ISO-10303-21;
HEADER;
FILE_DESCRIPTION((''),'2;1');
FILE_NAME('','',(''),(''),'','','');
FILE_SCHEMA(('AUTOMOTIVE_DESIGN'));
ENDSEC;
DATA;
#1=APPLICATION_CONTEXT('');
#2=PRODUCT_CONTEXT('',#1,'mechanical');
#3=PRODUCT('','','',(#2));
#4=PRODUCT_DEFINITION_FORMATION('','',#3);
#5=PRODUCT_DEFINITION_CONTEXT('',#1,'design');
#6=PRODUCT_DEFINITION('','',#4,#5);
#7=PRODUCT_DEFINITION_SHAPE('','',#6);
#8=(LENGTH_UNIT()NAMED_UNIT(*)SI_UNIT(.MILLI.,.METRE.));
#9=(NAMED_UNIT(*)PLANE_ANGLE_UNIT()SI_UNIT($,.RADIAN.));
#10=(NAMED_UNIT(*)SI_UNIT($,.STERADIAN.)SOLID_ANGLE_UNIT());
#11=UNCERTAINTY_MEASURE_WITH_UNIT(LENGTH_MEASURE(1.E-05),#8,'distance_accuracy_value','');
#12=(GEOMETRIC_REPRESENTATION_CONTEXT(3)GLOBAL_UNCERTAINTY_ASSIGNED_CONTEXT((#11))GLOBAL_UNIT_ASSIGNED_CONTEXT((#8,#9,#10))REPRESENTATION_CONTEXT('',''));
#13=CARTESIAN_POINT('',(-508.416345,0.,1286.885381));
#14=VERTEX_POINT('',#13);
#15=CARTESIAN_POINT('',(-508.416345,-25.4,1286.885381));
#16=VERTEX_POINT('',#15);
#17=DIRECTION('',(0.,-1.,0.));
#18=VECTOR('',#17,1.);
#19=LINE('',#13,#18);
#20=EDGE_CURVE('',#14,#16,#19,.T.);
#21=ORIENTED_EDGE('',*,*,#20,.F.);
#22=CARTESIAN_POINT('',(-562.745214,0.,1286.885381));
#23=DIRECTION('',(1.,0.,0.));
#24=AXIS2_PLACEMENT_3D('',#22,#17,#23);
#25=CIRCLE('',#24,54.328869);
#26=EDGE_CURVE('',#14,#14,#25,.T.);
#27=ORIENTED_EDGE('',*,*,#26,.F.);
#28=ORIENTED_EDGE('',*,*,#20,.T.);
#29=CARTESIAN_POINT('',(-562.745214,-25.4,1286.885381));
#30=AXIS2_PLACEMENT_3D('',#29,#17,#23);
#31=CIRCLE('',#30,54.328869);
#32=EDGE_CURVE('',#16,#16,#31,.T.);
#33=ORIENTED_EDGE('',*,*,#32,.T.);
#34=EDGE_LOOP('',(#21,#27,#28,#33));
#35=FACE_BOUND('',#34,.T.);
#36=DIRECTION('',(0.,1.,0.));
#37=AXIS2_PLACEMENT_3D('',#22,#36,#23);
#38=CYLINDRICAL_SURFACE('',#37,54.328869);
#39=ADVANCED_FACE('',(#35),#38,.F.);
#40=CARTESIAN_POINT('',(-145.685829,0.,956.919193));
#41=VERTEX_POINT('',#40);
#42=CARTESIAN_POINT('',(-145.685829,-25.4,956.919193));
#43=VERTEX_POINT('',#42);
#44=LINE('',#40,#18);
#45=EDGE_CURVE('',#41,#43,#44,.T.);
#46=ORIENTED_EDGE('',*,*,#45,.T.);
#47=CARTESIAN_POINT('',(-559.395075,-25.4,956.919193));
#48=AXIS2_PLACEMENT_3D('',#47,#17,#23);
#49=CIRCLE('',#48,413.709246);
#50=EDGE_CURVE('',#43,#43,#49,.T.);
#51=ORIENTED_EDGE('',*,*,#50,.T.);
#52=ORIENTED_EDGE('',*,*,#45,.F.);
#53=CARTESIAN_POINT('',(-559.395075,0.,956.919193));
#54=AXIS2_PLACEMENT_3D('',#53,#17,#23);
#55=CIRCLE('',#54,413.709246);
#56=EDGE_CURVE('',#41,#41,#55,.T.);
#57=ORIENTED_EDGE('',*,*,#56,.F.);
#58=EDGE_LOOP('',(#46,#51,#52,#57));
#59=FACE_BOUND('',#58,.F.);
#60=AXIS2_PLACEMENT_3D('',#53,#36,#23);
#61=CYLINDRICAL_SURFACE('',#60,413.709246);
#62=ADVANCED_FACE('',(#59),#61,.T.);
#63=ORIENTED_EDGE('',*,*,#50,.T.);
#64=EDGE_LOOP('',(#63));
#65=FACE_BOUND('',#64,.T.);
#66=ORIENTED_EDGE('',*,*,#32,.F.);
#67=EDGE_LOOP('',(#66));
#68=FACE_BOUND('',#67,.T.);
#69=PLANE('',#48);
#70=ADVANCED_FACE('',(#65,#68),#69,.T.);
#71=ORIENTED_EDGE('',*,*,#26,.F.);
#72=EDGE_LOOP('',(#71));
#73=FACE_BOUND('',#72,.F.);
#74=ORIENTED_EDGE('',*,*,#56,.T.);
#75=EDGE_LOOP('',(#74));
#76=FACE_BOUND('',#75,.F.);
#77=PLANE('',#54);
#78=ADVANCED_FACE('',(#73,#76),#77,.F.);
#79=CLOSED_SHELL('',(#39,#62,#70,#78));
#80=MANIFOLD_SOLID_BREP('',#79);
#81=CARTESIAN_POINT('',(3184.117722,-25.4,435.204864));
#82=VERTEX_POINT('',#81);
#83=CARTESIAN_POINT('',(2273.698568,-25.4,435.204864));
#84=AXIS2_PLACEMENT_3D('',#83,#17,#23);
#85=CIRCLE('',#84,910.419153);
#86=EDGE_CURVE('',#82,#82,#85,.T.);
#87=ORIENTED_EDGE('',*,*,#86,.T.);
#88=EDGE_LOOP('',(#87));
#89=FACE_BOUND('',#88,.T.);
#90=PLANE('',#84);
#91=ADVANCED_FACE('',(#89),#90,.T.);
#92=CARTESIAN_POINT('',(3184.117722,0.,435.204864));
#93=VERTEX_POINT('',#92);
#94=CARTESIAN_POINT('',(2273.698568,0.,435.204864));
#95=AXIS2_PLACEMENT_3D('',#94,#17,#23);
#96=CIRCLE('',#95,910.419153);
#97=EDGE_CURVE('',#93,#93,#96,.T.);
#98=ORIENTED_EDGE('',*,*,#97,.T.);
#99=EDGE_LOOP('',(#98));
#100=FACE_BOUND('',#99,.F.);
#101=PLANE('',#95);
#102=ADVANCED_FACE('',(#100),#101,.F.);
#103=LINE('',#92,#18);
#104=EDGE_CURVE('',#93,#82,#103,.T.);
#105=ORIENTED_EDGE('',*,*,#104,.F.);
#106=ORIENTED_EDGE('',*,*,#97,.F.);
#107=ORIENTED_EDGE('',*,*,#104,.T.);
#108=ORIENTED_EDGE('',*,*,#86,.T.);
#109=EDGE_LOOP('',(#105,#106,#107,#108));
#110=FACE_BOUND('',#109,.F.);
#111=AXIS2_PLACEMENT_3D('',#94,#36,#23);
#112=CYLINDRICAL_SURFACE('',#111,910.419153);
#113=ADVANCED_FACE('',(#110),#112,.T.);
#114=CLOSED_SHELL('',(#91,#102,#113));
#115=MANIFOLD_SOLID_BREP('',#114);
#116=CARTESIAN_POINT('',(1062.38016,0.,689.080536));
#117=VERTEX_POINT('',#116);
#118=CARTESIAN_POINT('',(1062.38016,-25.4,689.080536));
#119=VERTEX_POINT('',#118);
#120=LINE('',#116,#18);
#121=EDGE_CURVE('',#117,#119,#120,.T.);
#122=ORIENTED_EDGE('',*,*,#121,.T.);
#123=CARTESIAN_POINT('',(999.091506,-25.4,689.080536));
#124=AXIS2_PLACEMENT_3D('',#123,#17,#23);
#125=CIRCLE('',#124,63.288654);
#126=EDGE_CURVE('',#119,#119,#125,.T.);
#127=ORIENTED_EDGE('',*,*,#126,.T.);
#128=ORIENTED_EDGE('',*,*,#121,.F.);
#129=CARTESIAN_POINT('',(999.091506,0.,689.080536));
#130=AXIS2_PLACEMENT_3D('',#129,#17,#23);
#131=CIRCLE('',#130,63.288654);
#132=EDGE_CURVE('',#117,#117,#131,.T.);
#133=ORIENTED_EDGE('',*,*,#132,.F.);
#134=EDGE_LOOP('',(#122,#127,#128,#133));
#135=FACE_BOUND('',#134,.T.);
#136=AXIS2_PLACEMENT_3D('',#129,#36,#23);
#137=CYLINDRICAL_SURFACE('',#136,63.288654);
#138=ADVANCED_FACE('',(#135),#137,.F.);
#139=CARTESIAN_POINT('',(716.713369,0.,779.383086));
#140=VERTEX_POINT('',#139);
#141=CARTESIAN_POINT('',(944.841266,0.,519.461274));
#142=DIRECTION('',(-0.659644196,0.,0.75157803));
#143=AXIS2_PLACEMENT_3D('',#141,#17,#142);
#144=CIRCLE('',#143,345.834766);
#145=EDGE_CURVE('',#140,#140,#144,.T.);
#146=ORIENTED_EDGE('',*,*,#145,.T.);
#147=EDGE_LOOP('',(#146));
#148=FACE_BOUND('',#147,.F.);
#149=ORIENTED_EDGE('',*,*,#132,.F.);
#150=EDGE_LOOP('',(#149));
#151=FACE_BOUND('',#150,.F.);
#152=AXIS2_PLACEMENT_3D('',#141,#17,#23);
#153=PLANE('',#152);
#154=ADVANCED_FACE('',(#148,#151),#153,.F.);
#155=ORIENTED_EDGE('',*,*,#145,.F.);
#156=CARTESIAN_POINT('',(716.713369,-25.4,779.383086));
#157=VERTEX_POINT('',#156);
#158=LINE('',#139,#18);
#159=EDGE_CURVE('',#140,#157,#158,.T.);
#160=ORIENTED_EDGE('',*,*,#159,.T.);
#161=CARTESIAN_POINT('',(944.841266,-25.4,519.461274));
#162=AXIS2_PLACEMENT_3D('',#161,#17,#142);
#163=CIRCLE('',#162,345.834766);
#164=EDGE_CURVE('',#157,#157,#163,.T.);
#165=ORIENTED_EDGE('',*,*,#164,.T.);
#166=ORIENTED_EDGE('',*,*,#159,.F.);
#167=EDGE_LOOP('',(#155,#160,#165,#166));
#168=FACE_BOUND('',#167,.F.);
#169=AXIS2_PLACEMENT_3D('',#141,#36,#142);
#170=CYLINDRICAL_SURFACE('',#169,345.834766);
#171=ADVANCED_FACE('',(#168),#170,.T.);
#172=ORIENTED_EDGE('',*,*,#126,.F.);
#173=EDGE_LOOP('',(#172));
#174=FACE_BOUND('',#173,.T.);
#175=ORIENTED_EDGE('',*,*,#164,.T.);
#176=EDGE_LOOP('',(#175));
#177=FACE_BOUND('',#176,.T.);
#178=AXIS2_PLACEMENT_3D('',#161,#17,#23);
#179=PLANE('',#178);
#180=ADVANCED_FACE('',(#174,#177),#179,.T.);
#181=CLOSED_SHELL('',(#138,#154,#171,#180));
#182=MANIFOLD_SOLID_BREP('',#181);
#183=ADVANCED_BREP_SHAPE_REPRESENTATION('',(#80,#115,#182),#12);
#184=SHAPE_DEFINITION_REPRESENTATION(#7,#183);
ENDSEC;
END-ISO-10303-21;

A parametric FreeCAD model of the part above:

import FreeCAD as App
import Part
import Sketcher

V = App.Vector
Q = App.Units.Quantity

doc = App.newDocument("Part")
params = doc.addObject("Spreadsheet::Sheet", "Params")
for row, (alias, value) in enumerate([
    ("pad1_length", "1 in"),
    ("pad2_length", "1 in"),
    ("pad3_length", "1 in"),
], start=1):
    params.set(f"A{row}", alias)
    params.set(f"B{row}", "=" + value)
    params.setAlias(f"B{row}", alias)

body = doc.addObject("PartDesign::Body", "Body")

sketch1 = body.newObject("Sketcher::SketchObject", "Sketch")
sketch1.AttachmentSupport = (doc.getObject("XZ_Plane"), [""])
sketch1.MapMode = "FlatFace"
sketch1.addGeometry([
    Part.Circle(V(-559, 957, 0), V(0, 0, 1), 414),
    Part.Circle(V(-563, 1287, 0), V(0, 0, 1), 54),
], False)
sketch1.addConstraint([
    Sketcher.Constraint("Diameter", 0, Q("827.418492 mm")),
    Sketcher.Constraint("Diameter", 1, Q("108.657737 mm")),
    Sketcher.Constraint("DistanceY", -1, 1, 1, 3, Q("1286.885381 mm")),
    Sketcher.Constraint("DistanceX", 1, 3, 0, 3, Q("3.350139 mm")),
    Sketcher.Constraint("DistanceX", 0, 3, -1, 1, Q("559.395075 mm")),
    Sketcher.Constraint("DistanceY", -1, 1, 0, 3, Q("956.919193 mm")),
])
pad1 = body.newObject("PartDesign::Pad", "Pad")
pad1.Profile = sketch1
pad1.setExpression("Length", "Params.pad1_length")
body2 = doc.addObject("PartDesign::Body", "Body001")

sketch2 = body2.newObject("Sketcher::SketchObject", "Sketch001")
sketch2.AttachmentSupport = (doc.getObject("XZ_Plane001"), [""])
sketch2.MapMode = "FlatFace"
sketch2.addGeometry([
    Part.Circle(V(945, 519, 0), V(0, 0, 1), 346),
    Part.Circle(V(999, 689, 0), V(0, 0, 1), 63),
], False)
sketch2.addConstraint([
    Sketcher.Constraint("Diameter", 0, Q("691.669532 mm")),
    Sketcher.Constraint("Diameter", 1, Q("126.577308 mm")),
    Sketcher.Constraint("DistanceX", 0, 3, 1, 3, Q("54.25024 mm")),
    Sketcher.Constraint("DistanceX", -1, 1, 0, 3, Q("944.841266 mm")),
    Sketcher.Constraint("DistanceY", -1, 1, 0, 3, Q("519.461274 mm")),
    Sketcher.Constraint("DistanceY", -1, 1, 1, 3, Q("689.080536 mm")),
])
pad2 = body2.newObject("PartDesign::Pad", "Pad001")
pad2.Profile = sketch2
pad2.setExpression("Length", "Params.pad2_length")
body3 = doc.addObject("PartDesign::Body", "Body002")

sketch3 = body3.newObject("Sketcher::SketchObject", "Sketch002")
sketch3.AttachmentSupport = (doc.getObject("XZ_Plane002"), [""])
sketch3.MapMode = "FlatFace"
sketch3.addGeometry(Part.Circle(V(2274, 435, 0), V(0, 0, 1), 910), False)
sketch3.addConstraint([
    Sketcher.Constraint("Diameter", 0, Q("1820.838307 mm")),
    Sketcher.Constraint("DistanceX", -1, 1, 0, 3, Q("2273.698568 mm")),
    Sketcher.Constraint("DistanceY", -1, 1, 0, 3, Q("435.204864 mm")),
])
pad3 = body3.newObject("PartDesign::Pad", "Pad002")
pad3.Profile = sketch3
pad3.setExpression("Length", "Params.pad3_length")

doc.recompute()
